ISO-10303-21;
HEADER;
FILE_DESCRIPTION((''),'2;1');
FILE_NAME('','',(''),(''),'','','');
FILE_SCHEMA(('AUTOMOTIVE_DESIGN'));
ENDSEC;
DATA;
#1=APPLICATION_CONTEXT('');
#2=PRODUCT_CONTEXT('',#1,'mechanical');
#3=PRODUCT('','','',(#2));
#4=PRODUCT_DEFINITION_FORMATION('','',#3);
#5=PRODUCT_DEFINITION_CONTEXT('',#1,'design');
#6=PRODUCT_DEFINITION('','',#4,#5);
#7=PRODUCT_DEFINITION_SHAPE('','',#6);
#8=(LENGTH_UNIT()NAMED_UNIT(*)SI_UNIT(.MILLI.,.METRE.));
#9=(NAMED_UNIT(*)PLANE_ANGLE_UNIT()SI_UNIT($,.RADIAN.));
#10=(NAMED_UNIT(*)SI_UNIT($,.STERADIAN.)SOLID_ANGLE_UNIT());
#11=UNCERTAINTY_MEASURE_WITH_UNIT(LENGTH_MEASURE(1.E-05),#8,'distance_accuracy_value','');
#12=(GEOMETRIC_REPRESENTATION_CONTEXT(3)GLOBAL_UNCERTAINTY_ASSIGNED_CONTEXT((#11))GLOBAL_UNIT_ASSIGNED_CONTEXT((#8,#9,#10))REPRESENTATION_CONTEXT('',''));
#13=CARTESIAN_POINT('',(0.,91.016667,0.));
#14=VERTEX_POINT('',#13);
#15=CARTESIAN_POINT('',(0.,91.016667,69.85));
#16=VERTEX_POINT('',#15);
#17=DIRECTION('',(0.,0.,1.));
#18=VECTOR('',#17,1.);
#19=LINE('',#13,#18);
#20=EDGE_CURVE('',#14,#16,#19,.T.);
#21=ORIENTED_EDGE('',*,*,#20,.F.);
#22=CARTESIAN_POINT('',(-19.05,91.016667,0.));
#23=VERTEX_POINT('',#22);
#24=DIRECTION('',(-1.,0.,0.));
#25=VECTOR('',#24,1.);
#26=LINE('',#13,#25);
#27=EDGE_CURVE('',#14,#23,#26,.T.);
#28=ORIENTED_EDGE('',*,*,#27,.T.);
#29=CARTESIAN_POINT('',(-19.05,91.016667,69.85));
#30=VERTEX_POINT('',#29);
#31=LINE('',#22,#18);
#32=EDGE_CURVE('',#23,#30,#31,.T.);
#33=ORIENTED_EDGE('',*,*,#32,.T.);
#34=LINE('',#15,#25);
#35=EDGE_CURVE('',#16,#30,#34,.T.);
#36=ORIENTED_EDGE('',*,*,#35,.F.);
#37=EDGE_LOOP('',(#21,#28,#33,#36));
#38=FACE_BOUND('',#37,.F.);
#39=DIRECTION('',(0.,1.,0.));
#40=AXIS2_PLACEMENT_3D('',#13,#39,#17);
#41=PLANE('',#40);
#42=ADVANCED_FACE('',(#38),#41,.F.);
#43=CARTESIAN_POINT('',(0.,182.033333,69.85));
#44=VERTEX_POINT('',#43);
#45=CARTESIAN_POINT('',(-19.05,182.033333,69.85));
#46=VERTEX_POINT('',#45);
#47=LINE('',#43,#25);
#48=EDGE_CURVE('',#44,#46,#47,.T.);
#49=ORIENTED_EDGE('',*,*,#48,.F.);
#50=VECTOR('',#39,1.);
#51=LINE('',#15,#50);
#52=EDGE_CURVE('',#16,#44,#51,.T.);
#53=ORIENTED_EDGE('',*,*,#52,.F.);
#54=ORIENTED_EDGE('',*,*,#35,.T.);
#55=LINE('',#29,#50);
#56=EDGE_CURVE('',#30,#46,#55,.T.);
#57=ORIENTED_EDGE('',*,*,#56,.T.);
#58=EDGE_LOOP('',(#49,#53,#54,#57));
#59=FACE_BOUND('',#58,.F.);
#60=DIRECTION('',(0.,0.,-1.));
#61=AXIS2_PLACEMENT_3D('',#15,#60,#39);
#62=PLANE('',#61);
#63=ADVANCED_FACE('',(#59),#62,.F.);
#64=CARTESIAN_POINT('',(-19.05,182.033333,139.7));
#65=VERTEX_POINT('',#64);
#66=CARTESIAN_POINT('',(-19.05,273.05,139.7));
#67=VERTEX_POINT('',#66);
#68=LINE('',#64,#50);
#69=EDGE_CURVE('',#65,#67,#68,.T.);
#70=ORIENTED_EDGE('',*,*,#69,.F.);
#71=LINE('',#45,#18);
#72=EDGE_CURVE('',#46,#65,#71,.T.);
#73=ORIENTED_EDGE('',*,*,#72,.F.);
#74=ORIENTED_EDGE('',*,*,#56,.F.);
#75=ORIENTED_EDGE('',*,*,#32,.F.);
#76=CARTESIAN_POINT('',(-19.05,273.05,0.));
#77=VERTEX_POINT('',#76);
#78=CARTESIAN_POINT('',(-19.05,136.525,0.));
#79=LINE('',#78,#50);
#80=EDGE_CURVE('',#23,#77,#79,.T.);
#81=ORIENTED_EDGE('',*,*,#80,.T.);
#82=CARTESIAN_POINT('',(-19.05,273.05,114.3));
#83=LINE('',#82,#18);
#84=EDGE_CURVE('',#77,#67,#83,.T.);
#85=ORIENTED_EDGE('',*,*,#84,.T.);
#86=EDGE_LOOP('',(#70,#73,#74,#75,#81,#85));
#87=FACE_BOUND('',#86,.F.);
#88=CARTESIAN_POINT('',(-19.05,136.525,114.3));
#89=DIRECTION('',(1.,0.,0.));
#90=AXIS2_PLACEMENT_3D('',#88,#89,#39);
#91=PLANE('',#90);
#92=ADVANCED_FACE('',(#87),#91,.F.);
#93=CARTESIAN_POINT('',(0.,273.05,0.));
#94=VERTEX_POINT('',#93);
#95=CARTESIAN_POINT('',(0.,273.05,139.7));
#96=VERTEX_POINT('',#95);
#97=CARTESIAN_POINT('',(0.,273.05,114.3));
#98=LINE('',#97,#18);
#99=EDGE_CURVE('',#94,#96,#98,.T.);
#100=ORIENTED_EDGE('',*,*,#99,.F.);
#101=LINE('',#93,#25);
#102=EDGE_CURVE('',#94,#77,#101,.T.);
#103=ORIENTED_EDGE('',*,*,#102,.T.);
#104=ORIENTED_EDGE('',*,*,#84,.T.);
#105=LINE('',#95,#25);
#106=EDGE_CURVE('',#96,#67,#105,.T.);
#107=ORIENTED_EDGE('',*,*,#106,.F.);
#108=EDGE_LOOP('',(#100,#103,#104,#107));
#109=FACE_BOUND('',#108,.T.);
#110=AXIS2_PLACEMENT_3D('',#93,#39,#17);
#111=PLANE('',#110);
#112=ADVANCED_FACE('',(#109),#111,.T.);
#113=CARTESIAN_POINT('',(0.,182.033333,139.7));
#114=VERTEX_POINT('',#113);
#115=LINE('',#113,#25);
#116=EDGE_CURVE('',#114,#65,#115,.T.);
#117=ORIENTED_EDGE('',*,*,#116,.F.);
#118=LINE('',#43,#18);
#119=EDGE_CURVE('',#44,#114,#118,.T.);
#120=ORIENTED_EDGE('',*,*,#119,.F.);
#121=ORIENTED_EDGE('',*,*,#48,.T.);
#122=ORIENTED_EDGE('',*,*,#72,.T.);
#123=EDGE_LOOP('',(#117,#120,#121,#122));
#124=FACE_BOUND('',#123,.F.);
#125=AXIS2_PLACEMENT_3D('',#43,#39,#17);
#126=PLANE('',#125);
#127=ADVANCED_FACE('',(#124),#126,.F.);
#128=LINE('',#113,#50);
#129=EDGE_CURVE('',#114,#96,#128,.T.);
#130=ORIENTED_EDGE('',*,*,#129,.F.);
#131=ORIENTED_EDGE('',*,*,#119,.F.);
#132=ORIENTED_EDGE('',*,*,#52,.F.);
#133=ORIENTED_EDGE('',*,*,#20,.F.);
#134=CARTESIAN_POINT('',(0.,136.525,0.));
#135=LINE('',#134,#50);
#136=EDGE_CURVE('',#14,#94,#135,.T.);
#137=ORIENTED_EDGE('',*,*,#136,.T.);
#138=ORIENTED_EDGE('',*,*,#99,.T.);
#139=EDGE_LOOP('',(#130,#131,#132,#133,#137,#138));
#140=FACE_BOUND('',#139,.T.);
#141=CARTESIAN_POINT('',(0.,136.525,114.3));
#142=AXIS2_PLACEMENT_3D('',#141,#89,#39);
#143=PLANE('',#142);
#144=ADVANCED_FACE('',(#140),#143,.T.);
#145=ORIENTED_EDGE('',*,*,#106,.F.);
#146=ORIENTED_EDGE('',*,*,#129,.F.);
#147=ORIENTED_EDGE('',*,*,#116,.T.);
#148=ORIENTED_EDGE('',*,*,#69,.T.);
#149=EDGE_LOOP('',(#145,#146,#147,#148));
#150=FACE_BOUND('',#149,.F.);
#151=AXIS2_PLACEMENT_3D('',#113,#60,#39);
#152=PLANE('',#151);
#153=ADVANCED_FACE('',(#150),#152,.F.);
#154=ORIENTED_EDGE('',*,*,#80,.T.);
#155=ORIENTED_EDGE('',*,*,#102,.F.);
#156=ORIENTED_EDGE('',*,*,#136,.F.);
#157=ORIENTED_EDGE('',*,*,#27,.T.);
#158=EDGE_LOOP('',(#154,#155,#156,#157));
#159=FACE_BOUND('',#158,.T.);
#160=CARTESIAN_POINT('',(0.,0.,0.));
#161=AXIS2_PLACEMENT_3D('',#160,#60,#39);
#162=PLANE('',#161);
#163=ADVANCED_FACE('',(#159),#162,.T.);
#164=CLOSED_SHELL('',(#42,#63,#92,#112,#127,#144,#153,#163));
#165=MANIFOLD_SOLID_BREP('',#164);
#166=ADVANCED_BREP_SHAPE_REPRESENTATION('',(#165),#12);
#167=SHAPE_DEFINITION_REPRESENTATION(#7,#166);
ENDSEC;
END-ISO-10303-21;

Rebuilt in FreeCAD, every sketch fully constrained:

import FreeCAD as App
import Part
import Sketcher

V = App.Vector
Q = App.Units.Quantity


def add_polygon(sketch, points):
    """Adds a closed chain of lines whose ends are joined by coincident constraints."""
    first, n = sketch.GeometryCount, len(points)
    for a, b in zip(points, points[1:] + points[:1]):
        sketch.addGeometry(Part.LineSegment(App.Vector(*a, 0), App.Vector(*b, 0)), False)
    for i in range(n):
        sketch.addConstraint(Sketcher.Constraint("Coincident", first + i, 2, first + (i + 1) % n, 1))

doc = App.newDocument("Part")
body = doc.addObject("PartDesign::Body", "Body")

sketch1 = body.newObject("Sketcher::SketchObject", "Sketch")
sketch1.AttachmentSupport = (doc.getObject("YZ_Plane"), [""])
sketch1.MapMode = "FlatFace"
add_polygon(sketch1, [(0, 229), (0, 0), (273, 0), (273, 229)])
sketch1.addConstraint(Sketcher.Constraint("Vertical", 0))
sketch1.addConstraint(Sketcher.Constraint("Horizontal", 1))
sketch1.addConstraint(Sketcher.Constraint("Vertical", 2))
sketch1.addConstraint(Sketcher.Constraint("Horizontal", 3))
sketch1.addConstraint(Sketcher.Constraint("Coincident", 0, 2, -1, 1))
sketch1.addConstraint(Sketcher.Constraint("DistanceY", 0, 2, 0, 1, Q("9 in")))
sketch1.addConstraint(Sketcher.Constraint("DistanceX", 1, 1, 1, 2, Q("10.75 in")))
pad1 = body.newObject("PartDesign::Pad", "Pad")
pad1.Profile = sketch1
pad1.Length = Q("0.75 in")
pad1.Reversed = True

sketch2 = body.newObject("Sketcher::SketchObject", "Sketch001")
sketch2.AttachmentSupport = (doc.getObject("YZ_Plane"), [""])
sketch2.MapMode = "FlatFace"
add_polygon(sketch2, [(182, 140), (273, 140), (273, 229), (0, 229), (0, 0), (91, 0), (91, 70), (182, 70)])
sketch2.addConstraint(Sketcher.Constraint("Horizontal", 0))
sketch2.addConstraint(Sketcher.Constraint("Vertical", 1))
sketch2.addConstraint(Sketcher.Constraint("Horizontal", 2))
sketch2.addConstraint(Sketcher.Constraint("Vertical", 3))
sketch2.addConstraint(Sketcher.Constraint("Horizontal", 4))
sketch2.addConstraint(Sketcher.Constraint("Vertical", 5))
sketch2.addConstraint(Sketcher.Constraint("Horizontal", 6))
sketch2.addConstraint(Sketcher.Constraint("Vertical", 7))
sketch2.addConstraint(Sketcher.Constraint("Coincident", 3, 2, -1, 1))
sketch2.addConstraint(Sketcher.Constraint("Equal", 0, 4))
sketch2.addConstraint(Sketcher.Constraint("Equal", 4, 6))
sketch2.addConstraint(Sketcher.Constraint("Equal", 5, 7))
sketch2.addConstraint(Sketcher.Constraint("DistanceY", 3, 2, 3, 1, Q("9 in")))
sketch2.addConstraint(Sketcher.Constraint("DistanceY", 1, 1, 1, 2, Q("3.5 in")))
sketch2.addConstraint(Sketcher.Constraint("DistanceX", 2, 2, 2, 1, Q("10.75 in")))
pocket1 = body.newObject("PartDesign::Pocket", "Pocket")
pocket1.Profile = sketch2
pocket1.Type = "ThroughAll"

doc.recompute()
